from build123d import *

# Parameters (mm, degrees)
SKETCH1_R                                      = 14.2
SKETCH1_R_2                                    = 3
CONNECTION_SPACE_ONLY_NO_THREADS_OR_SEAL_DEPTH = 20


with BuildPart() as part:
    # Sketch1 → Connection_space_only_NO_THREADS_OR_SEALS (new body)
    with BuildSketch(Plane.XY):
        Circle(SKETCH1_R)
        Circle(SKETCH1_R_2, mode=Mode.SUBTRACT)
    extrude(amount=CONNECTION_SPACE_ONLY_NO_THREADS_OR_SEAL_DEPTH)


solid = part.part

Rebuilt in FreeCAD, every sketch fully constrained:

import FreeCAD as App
import Part
import Sketcher

V = App.Vector
Q = App.Units.Quantity

doc = App.newDocument("Part")
body = doc.addObject("PartDesign::Body", "Body")

sketch1 = body.newObject("Sketcher::SketchObject", "Sketch")
sketch1.AttachmentSupport = (doc.getObject("XY_Plane"), [""])
sketch1.MapMode = "FlatFace"
sketch1.addGeometry([
    Part.Circle(V(0, 0, 0), V(0, 0, 1), 14.2),
    Part.Circle(V(0, 0, 0), V(0, 0, 1), 3),
], False)
sketch1.addConstraint([
    Sketcher.Constraint("Coincident", 0, 3, -1, 1),
    Sketcher.Constraint("Coincident", 1, 3, -1, 1),
    Sketcher.Constraint("Diameter", 1, Q("6 mm")),
    Sketcher.Constraint("Diameter", 0, Q("28.4 mm")),
])
pad1 = body.newObject("PartDesign::Pad", "Pad")
pad1.Profile = sketch1
pad1.Length = 20

doc.recompute()
